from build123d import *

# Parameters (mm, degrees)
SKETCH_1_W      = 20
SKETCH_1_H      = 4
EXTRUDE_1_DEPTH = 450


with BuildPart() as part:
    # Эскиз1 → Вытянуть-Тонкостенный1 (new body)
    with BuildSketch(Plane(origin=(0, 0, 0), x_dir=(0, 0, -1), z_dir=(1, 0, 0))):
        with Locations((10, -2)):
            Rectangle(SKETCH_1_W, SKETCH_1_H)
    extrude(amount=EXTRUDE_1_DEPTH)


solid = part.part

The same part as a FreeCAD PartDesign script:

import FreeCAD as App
import Part
import Sketcher
from FreeCAD import Vector


def add_polygon(sketch, points):
    """Adds a closed chain of lines whose ends are joined by coincident constraints."""
    first, n = sketch.GeometryCount, len(points)
    for a, b in zip(points, points[1:] + points[:1]):
        sketch.addGeometry(Part.LineSegment(App.Vector(*a, 0), App.Vector(*b, 0)), False)
    for i in range(n):
        sketch.addConstraint(Sketcher.Constraint("Coincident", first + i, 2, first + (i + 1) % n, 1))

doc = App.newDocument("Part")
body = doc.addObject("PartDesign::Body", "Body")

# Sketch on YZ plane
sketch1 = body.newObject("Sketcher::SketchObject", "Sketch")
sketch1.AttachmentSupport = (doc.getObject("YZ_Plane"), [""])
sketch1.MapMode = "FlatFace"
add_polygon(sketch1, [(0, 0), (-4, 0), (-4, -20), (0, -20)])  # lines 0-3
sketch1.addConstraint([
    Sketcher.Constraint("Horizontal", 0),
    Sketcher.Constraint("Vertical", 1),
    Sketcher.Constraint("Horizontal", 2),
    Sketcher.Constraint("Vertical", 3),
    Sketcher.Constraint("Coincident", 3, 2, -1, 1),
    Sketcher.Constraint("DistanceX", 0, 2, 0, 1, 4.0),
    Sketcher.Constraint("DistanceY", 1, 2, 1, 1, 20.0),
])
pad1 = body.newObject("PartDesign::Pad", "Pad")
pad1.Profile = sketch1
pad1.Length = 450

doc.recompute()
